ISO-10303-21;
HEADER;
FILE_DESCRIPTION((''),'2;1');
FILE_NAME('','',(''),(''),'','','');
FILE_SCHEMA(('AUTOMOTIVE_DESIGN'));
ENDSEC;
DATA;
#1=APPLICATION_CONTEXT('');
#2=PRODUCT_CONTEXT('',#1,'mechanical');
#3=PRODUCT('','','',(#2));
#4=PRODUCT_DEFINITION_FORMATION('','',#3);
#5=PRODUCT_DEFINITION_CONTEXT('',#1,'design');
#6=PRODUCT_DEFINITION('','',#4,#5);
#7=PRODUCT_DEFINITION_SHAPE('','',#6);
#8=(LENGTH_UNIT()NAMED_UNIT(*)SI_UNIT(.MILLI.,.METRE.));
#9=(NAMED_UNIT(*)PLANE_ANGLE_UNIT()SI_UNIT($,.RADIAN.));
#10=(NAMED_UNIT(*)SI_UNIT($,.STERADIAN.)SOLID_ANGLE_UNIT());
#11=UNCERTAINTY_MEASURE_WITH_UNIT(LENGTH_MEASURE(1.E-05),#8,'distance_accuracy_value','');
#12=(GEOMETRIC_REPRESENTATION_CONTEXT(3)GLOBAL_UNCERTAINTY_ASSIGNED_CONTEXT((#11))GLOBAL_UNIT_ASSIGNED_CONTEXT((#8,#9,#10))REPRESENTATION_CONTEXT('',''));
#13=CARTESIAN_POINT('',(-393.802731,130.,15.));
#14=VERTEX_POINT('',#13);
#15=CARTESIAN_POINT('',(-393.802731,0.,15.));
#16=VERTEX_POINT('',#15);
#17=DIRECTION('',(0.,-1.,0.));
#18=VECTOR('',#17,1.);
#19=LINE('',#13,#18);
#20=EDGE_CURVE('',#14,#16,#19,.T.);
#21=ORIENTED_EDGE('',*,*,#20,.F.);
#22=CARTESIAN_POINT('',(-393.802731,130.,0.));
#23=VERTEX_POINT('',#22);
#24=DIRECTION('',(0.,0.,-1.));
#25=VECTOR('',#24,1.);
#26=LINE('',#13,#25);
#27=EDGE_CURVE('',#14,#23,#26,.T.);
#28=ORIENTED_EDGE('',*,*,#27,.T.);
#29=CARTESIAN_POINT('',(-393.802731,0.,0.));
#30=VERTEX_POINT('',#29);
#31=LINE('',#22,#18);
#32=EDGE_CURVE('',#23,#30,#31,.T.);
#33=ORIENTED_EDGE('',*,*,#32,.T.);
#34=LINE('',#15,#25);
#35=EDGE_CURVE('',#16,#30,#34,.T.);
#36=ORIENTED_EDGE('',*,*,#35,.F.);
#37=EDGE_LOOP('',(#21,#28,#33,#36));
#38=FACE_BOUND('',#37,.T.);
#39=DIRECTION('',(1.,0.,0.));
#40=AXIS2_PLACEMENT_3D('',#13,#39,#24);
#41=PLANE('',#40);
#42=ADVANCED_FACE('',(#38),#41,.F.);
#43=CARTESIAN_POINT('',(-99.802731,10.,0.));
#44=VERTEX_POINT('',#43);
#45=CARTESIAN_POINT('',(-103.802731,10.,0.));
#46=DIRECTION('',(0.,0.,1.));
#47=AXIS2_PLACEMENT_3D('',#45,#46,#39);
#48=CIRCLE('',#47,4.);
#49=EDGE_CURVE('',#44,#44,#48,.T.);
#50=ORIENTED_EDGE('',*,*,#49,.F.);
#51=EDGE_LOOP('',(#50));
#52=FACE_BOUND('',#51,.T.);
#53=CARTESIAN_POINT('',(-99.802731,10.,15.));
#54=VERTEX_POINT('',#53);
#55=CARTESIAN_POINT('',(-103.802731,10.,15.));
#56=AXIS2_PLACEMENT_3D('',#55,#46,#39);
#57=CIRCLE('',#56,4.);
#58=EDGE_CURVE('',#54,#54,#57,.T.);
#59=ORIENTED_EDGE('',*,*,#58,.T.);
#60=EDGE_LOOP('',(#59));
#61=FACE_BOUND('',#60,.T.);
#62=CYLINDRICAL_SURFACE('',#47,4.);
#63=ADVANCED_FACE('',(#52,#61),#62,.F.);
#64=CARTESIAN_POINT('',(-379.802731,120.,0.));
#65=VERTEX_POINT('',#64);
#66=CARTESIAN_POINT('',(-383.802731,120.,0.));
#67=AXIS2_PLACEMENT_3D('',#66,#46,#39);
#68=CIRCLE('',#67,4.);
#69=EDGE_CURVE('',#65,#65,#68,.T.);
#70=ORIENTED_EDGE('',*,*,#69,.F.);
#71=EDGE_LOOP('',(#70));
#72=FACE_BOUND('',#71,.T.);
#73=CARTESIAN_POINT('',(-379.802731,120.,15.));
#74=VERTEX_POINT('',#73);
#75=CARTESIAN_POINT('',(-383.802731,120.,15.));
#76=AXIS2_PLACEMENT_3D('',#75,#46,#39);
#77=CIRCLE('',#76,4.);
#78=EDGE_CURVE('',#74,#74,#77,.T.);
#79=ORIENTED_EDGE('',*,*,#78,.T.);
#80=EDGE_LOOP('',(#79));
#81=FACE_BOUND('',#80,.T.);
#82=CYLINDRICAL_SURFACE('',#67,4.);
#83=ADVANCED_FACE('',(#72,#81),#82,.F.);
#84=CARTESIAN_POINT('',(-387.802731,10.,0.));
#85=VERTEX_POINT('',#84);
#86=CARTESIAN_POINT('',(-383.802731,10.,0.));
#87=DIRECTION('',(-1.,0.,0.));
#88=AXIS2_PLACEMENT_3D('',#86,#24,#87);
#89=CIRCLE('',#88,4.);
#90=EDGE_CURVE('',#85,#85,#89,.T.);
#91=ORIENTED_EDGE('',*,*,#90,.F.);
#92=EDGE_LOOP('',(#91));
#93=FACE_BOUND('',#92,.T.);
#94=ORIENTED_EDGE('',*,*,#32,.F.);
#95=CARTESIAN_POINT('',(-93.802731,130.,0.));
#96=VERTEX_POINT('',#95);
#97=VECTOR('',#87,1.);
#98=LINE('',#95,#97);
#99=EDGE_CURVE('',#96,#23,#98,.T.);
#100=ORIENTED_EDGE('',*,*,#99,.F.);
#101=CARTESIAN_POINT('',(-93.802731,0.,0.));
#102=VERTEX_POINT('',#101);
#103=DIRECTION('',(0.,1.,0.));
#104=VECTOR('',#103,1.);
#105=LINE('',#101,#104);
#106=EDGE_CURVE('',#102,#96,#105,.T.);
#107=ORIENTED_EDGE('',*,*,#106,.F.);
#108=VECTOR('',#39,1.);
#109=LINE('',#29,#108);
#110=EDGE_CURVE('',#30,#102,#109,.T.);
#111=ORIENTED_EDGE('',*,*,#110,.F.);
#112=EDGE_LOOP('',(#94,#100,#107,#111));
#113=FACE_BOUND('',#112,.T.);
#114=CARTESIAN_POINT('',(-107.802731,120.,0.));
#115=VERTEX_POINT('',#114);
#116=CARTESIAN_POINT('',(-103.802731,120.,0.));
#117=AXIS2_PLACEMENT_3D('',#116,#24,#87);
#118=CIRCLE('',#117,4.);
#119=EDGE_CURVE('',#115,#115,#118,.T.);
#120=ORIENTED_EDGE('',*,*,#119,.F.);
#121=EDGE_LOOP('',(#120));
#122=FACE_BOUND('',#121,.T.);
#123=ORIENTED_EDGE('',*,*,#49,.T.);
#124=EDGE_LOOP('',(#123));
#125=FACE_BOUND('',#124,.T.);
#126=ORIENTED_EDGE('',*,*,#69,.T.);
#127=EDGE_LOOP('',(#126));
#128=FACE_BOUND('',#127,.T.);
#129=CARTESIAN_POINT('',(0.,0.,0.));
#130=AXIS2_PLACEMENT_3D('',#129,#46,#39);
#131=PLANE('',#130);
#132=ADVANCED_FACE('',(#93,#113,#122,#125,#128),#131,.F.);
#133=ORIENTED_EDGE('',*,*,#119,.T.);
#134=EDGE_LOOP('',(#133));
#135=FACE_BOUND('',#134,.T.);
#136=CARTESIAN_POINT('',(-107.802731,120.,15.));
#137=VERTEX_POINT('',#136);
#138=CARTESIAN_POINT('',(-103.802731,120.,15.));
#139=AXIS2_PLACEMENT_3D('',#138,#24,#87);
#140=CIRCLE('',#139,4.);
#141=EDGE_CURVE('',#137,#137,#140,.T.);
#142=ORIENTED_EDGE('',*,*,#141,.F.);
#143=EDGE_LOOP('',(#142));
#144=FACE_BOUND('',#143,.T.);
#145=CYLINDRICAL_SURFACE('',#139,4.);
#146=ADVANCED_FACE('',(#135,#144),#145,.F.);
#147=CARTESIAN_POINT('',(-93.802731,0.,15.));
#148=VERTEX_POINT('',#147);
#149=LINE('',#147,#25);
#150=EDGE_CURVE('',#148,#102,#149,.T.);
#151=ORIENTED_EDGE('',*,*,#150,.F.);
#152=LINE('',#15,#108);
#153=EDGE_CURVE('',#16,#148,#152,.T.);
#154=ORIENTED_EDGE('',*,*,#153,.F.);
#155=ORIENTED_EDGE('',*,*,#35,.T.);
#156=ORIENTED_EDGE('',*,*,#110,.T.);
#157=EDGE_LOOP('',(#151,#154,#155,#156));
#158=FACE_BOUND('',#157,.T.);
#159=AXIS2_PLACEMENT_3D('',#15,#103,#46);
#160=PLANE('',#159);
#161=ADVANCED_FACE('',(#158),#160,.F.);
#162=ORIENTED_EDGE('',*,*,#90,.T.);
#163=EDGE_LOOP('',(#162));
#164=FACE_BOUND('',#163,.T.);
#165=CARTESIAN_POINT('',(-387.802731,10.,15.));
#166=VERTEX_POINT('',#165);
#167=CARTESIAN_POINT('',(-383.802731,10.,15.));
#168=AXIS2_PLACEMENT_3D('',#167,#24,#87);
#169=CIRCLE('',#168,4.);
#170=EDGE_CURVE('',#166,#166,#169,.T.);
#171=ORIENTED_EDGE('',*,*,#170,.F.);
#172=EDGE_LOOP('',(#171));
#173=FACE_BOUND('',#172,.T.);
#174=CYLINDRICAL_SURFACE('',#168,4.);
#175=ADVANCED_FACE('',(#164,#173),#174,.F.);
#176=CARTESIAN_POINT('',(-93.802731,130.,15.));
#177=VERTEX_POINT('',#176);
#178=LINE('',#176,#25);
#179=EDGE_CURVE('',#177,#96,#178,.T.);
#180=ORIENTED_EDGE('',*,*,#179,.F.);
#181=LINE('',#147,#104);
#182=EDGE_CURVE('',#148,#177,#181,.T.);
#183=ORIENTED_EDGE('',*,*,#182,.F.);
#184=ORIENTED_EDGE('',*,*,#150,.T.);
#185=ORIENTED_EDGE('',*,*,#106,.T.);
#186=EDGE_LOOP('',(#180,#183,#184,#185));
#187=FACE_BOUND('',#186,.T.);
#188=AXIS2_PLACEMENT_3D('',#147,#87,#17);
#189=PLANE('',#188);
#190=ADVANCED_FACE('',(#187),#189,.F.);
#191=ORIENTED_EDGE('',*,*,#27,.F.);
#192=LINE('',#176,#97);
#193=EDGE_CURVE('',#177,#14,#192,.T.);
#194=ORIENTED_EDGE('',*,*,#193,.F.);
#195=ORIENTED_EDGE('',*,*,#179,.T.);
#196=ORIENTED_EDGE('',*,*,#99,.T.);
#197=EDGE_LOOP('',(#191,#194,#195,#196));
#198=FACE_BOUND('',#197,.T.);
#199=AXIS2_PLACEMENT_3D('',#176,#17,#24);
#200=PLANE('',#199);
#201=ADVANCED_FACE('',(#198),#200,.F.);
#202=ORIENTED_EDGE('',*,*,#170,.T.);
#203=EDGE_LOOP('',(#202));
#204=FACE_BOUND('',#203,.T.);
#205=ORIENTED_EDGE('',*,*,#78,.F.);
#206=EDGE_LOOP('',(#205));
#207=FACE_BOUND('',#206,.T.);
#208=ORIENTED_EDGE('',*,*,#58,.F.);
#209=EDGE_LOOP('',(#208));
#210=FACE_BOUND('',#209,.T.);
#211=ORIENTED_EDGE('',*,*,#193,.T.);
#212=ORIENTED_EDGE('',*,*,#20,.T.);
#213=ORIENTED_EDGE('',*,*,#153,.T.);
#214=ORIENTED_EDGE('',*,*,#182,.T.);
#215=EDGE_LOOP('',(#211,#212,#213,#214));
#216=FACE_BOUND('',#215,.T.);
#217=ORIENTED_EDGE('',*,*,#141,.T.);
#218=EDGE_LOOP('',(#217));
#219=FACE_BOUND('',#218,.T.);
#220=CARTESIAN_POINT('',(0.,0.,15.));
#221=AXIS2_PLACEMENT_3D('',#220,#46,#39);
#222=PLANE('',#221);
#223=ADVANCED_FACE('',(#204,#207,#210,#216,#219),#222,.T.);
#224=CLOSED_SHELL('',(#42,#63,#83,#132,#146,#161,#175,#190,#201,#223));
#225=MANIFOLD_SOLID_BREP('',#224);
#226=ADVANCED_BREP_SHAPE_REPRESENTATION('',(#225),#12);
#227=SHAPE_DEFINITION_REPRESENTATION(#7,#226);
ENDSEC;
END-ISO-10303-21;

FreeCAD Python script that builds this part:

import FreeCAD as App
import Part
import Sketcher
from FreeCAD import Vector
Q = App.Units.Quantity

doc = App.newDocument("Part")
body = doc.addObject("PartDesign::Body", "Body")

sketch1 = doc.addObject("Sketcher::SketchObject", "Sketch")
body.addObject(sketch1)
sketch1.AttachmentSupport = (doc.XY_Plane, [""])
sketch1.MapMode = "FlatFace"
sketch1.addGeometry([
    Part.LineSegment(Vector(-394, 130, 0), Vector(-394, 0, 0)),
    Part.LineSegment(Vector(-394, 0, 0), Vector(-94, 0, 0)),
    Part.LineSegment(Vector(-94, 0, 0), Vector(-94, 130, 0)),
    Part.LineSegment(Vector(-94, 130, 0), Vector(-394, 130, 0)),
], False)
sketch1.addConstraint([
    Sketcher.Constraint("Coincident", 0, 2, 1, 1),
    Sketcher.Constraint("Coincident", 1, 2, 2, 1),
    Sketcher.Constraint("Coincident", 2, 2, 3, 1),
    Sketcher.Constraint("Coincident", 3, 2, 0, 1),
    Sketcher.Constraint("Vertical", 0),
    Sketcher.Constraint("Horizontal", 1),
    Sketcher.Constraint("Vertical", 2),
    Sketcher.Constraint("Horizontal", 3),
    Sketcher.Constraint("PointOnObject", 0, 2, -1),
    Sketcher.Constraint("DistanceX", 1, 1, 1, 2, Q("300 mm")),
    Sketcher.Constraint("DistanceY", 0, 2, 0, 1, Q("130 mm")),
    Sketcher.Constraint("DistanceX", 0, 2, -1, 1, Q("393.802731 mm")),
])
pad1 = doc.addObject("PartDesign::Pad", "Pad")
body.addObject(pad1)
pad1.Profile = sketch1
pad1.Length = 15

sketch2 = doc.addObject("Sketcher::SketchObject", "Sketch001")
body.addObject(sketch2)
sketch2.AttachmentSupport = (doc.XY_Plane, [""])
sketch2.MapMode = "FlatFace"
sketch2.AttachmentOffset = App.Placement(Vector(0, 0, 15), App.Rotation())
sketch2.addGeometry(Part.Circle(Vector(-383.8, 120, 0), Vector(0, 0, 1), 4), False)
sketch2.addConstraint([
    Sketcher.Constraint("Diameter", 0, Q("8 mm")),
    Sketcher.Constraint("DistanceY", -1, 1, 0, 3, Q("120 mm")),
    Sketcher.Constraint("DistanceX", 0, 3, -1, 1, Q("383.802731 mm")),
])
pocket1 = doc.addObject("PartDesign::Pocket", "Pocket")
body.addObject(pocket1)
pocket1.Profile = sketch2
pocket1.Type = "ThroughAll"

sketch3 = doc.addObject("Sketcher::SketchObject", "Sketch002")
body.addObject(sketch3)
sketch3.AttachmentSupport = (doc.XY_Plane, [""])
sketch3.MapMode = "FlatFace"
sketch3.AttachmentOffset = App.Placement(Vector(0, 0, 15), App.Rotation())
sketch3.addGeometry(Part.Circle(Vector(-103.8, 10, 0), Vector(0, 0, 1), 4), False)
sketch3.addConstraint([
    Sketcher.Constraint("Diameter", 0, Q("8 mm")),
    Sketcher.Constraint("DistanceY", -1, 1, 0, 3, Q("10 mm")),
    Sketcher.Constraint("DistanceX", 0, 3, -1, 1, Q("103.802731 mm")),
])
pocket2 = doc.addObject("PartDesign::Pocket", "Pocket001")
body.addObject(pocket2)
pocket2.Profile = sketch3
pocket2.Type = "ThroughAll"

sketch4 = doc.addObject("Sketcher::SketchObject", "Sketch003")
body.addObject(sketch4)
sketch4.AttachmentSupport = (doc.XY_Plane, [""])
sketch4.MapMode = "FlatFace"
sketch4.addGeometry([
    Part.Circle(Vector(-103.8, 120, 0), Vector(0, 0, 1), 4),
    Part.Circle(Vector(-383.8, 10, 0), Vector(0, 0, 1), 4),
], False)
sketch4.addConstraint([
    Sketcher.Constraint("Equal", 0, 1),
    Sketcher.Constraint("Diameter", 0, Q("8 mm")),
    Sketcher.Constraint("DistanceY", -1, 1, 0, 3, Q("120 mm")),
    Sketcher.Constraint("DistanceY", -1, 1, 1, 3, Q("10 mm")),
    Sketcher.Constraint("DistanceX", 1, 3, 0, 3, Q("280 mm")),
    Sketcher.Constraint("DistanceX", 0, 3, -1, 1, Q("103.802731 mm")),
])
pocket3 = doc.addObject("PartDesign::Pocket", "Pocket002")
body.addObject(pocket3)
pocket3.Profile = sketch4
pocket3.Type = "ThroughAll"
pocket3.Reversed = True

doc.recompute()
